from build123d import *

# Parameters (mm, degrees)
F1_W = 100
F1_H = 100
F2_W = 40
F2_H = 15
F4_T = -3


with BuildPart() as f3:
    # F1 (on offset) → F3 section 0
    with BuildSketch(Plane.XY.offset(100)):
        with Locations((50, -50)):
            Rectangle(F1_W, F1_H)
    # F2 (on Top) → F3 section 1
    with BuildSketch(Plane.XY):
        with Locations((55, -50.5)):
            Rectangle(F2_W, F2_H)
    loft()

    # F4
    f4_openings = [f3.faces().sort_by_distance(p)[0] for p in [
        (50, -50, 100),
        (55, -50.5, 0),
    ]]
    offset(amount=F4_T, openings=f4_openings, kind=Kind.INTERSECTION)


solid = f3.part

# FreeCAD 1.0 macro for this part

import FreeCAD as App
import Part
import Sketcher


def faces_at(feature, points):
    """Names of the faces that lie closest to the given points."""
    faces = feature.Shape.Faces
    near = lambda p: min(range(len(faces)), key=lambda i: faces[i].distToShape(Part.Vertex(*p))[0])
    return sorted({f"Face{near(p) + 1}" for p in points})

doc = App.newDocument("Part")
body = doc.addObject("PartDesign::Body", "Body")

# Sketch on XY plane
sketch1 = body.newObject("Sketcher::SketchObject", "Sketch")
sketch1.AttachmentSupport = (doc.getObject("XY_Plane"), [""])
sketch1.MapMode = "FlatFace"
sketch1.AttachmentOffset = App.Placement(App.Vector(0, 0, 100), App.Rotation())
sketch1.addGeometry([
    Part.LineSegment(App.Vector(0, 0, 0), App.Vector(0, -100, 0)),
    Part.LineSegment(App.Vector(0, -100, 0), App.Vector(100, -100, 0)),
    Part.LineSegment(App.Vector(100, -100, 0), App.Vector(100, 0, 0)),
    Part.LineSegment(App.Vector(100, 0, 0), App.Vector(0, 0, 0)),
], False)
sketch1.addConstraint([
    Sketcher.Constraint("Coincident", 0, 2, 1, 1),
    Sketcher.Constraint("Coincident", 1, 2, 2, 1),
    Sketcher.Constraint("Coincident", 2, 2, 3, 1),
    Sketcher.Constraint("Coincident", 3, 2, 0, 1),
    Sketcher.Constraint("Vertical", 0),
    Sketcher.Constraint("Horizontal", 1),
    Sketcher.Constraint("Vertical", 2),
    Sketcher.Constraint("Horizontal", 3),
    Sketcher.Constraint("Coincident", 3, 2, -1, 1),
    Sketcher.Constraint("Equal", 3, 0),
    Sketcher.Constraint("DistanceX", 1, 1, 1, 2, 100.0),
])

# Sketch on XY plane
sketch2 = body.newObject("Sketcher::SketchObject", "Sketch001")
sketch2.AttachmentSupport = (doc.getObject("XY_Plane"), [""])
sketch2.MapMode = "FlatFace"
sketch2.addGeometry([
    Part.LineSegment(App.Vector(35, -43, 0), App.Vector(35, -58, 0)),
    Part.LineSegment(App.Vector(35, -58, 0), App.Vector(75, -58, 0)),
    Part.LineSegment(App.Vector(75, -58, 0), App.Vector(75, -43, 0)),
    Part.LineSegment(App.Vector(75, -43, 0), App.Vector(35, -43, 0)),
], False)
sketch2.addConstraint([
    Sketcher.Constraint("Coincident", 0, 2, 1, 1),
    Sketcher.Constraint("Coincident", 1, 2, 2, 1),
    Sketcher.Constraint("Coincident", 2, 2, 3, 1),
    Sketcher.Constraint("Coincident", 3, 2, 0, 1),
    Sketcher.Constraint("Vertical", 0),
    Sketcher.Constraint("Horizontal", 1),
    Sketcher.Constraint("Vertical", 2),
    Sketcher.Constraint("Horizontal", 3),
    Sketcher.Constraint("DistanceX", 1, 1, 1, 2, 40.0),
    Sketcher.Constraint("DistanceY", 0, 2, 0, 1, 15.0),
    Sketcher.Constraint("DistanceX", -1, 1, 0, 2, 35.0),
    Sketcher.Constraint("DistanceY", 0, 2, -1, 1, 58.0),
])

additiveloft = body.newObject("PartDesign::AdditiveLoft", "AdditiveLoft")
additiveloft.Profile = sketch1
additiveloft.Sections = [sketch2]
doc.recompute()

thickness = body.newObject("PartDesign::Thickness", "Thickness")
thickness.Base = (additiveloft, faces_at(additiveloft, [(50, -50, 100), (55, -50.5, 0)]))
thickness.Value = 3
thickness.Reversed = True
thickness.Join = "Intersection"

doc.recompute()
